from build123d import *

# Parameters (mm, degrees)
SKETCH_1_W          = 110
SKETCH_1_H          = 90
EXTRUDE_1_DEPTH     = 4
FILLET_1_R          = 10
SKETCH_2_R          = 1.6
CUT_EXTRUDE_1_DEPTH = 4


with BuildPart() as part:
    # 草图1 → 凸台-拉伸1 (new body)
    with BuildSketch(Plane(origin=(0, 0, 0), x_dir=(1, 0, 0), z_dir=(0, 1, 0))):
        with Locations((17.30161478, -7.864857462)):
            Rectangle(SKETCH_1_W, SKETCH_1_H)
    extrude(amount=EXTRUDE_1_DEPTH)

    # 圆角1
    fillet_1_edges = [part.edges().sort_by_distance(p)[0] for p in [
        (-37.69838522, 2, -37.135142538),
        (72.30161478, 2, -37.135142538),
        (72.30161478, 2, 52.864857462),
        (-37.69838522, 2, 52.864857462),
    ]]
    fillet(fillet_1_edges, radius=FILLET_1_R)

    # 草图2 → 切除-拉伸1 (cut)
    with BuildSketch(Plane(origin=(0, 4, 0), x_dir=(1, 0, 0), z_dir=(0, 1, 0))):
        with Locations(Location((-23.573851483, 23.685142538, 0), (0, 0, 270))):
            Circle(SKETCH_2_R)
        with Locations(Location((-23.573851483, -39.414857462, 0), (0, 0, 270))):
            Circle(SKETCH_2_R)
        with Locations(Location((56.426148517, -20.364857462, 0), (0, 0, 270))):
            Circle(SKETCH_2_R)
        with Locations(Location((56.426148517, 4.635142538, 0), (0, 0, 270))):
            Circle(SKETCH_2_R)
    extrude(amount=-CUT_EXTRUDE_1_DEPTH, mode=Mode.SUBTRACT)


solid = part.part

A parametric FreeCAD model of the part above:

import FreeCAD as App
import Part
import Sketcher
from FreeCAD import Vector


def edges_at(feature, points):
    """Names of the edges that pass closest to the given points."""
    edges = feature.Shape.Edges
    near = lambda p: min(range(len(edges)), key=lambda i: edges[i].distToShape(Part.Vertex(*p))[0])
    return sorted({f"Edge{near(p) + 1}" for p in points})


def add_polygon(sketch, points):
    """Adds a closed chain of lines whose ends are joined by coincident constraints."""
    first, n = sketch.GeometryCount, len(points)
    for a, b in zip(points, points[1:] + points[:1]):
        sketch.addGeometry(Part.LineSegment(App.Vector(*a, 0), App.Vector(*b, 0)), False)
    for i in range(n):
        sketch.addConstraint(Sketcher.Constraint("Coincident", first + i, 2, first + (i + 1) % n, 1))

doc = App.newDocument("Part")
params = doc.addObject("Spreadsheet::Sheet", "Params")
for row, (alias, value) in enumerate([
    ("sketch1_width", "110 mm"),
    ("sketch1_height", "90 mm"),
    ("pad1_length", "4 mm"),
    ("fillet_radius", "10 mm"),
    ("sketch2_diameter", "3.2 mm"),
    ("pocket1_length", "4 mm"),
], start=1):
    params.set(f"A{row}", alias)
    params.set(f"B{row}", "=" + value)
    params.setAlias(f"B{row}", alias)

body = doc.addObject("PartDesign::Body", "Body")

# Sketch on XZ plane
sketch1 = doc.addObject("Sketcher::SketchObject", "Sketch")
body.addObject(sketch1)
sketch1.AttachmentSupport = (doc.XZ_Plane, [""])
sketch1.MapMode = "FlatFace"
add_polygon(sketch1, [(-37.698385, -37.135143), (-37.698385, 52.864857), (72.301615, 52.864857), (72.301615, -37.135143)])  # lines 0-3
sketch1.addConstraint(Sketcher.Constraint("Vertical", 0))
sketch1.addConstraint(Sketcher.Constraint("Horizontal", 1))
sketch1.addConstraint(Sketcher.Constraint("Vertical", 2))
sketch1.addConstraint(Sketcher.Constraint("Horizontal", 3))
sketch1.addConstraint(Sketcher.Constraint("DistanceX", 1, 1, 1, 2, 110.0))
sketch1.addConstraint(Sketcher.Constraint("DistanceY", 0, 1, 0, 2, 90.0))
sketch1.addConstraint(Sketcher.Constraint("DistanceX", 0, 2, -1, 1, 37.698385))
sketch1.addConstraint(Sketcher.Constraint("DistanceY", -1, 1, 0, 2, 52.864857))
sketch1.setExpression("Constraints[8]", "Params.sketch1_width")
sketch1.setExpression("Constraints[9]", "Params.sketch1_height")
pad1 = doc.addObject("PartDesign::Pad", "Pad")
body.addObject(pad1)
pad1.Profile = sketch1
pad1.setExpression("Length", "Params.pad1_length")
pad1.Reversed = True
doc.recompute()

fillet = doc.addObject("PartDesign::Fillet", "Fillet")
body.addObject(fillet)
fillet.Base = (pad1, edges_at(pad1, [
    (-37.698, 2, -37.135),
    (72.302, 2, -37.135),
    (72.302, 2, 52.865),
    (-37.698, 2, 52.865),
]))
fillet.setExpression("Radius", "Params.fillet_radius")

# Sketch on XZ plane
sketch2 = doc.addObject("Sketcher::SketchObject", "Sketch001")
body.addObject(sketch2)
sketch2.AttachmentSupport = (doc.XZ_Plane, [""])
sketch2.MapMode = "FlatFace"
sketch2.AttachmentOffset = App.Placement(Vector(0, 0, -4), App.Rotation())
sketch2.addGeometry(Part.Circle(Vector(-23.573851, -23.685143, 0), Vector(0, 0, 1), 1.6), False)
sketch2.addGeometry(Part.Circle(Vector(-23.573851, 39.414857, 0), Vector(0, 0, 1), 1.6), False)
sketch2.addGeometry(Part.Circle(Vector(56.426149, 20.364857, 0), Vector(0, 0, 1), 1.6), False)
sketch2.addGeometry(Part.Circle(Vector(56.426149, -4.635143, 0), Vector(0, 0, 1), 1.6), False)
sketch2.addConstraint(Sketcher.Constraint("Equal", 0, 1))
sketch2.addConstraint(Sketcher.Constraint("Equal", 1, 2))
sketch2.addConstraint(Sketcher.Constraint("Equal", 2, 3))
sketch2.addConstraint(Sketcher.Constraint("Vertical", 0, 3, 1, 3))
sketch2.addConstraint(Sketcher.Constraint("Vertical", 2, 3, 3, 3))
sketch2.addConstraint(Sketcher.Constraint("Diameter", 0, 3.2))
sketch2.addConstraint(Sketcher.Constraint("DistanceX", 1, 3, 2, 3, 80.0))
sketch2.addConstraint(Sketcher.Constraint("DistanceY", 3, 3, 2, 3, 25.0))
sketch2.addConstraint(Sketcher.Constraint("DistanceY", 0, 3, 1, 3, 63.1))
sketch2.addConstraint(Sketcher.Constraint("DistanceY", 2, 3, 1, 3, 19.05))
sketch2.addConstraint(Sketcher.Constraint("DistanceX", 0, 3, -1, 1, 23.573851))
sketch2.addConstraint(Sketcher.Constraint("DistanceY", 0, 3, -1, 1, 23.685143))
sketch2.setExpression("Constraints[5]", "Params.sketch2_diameter")
pocket1 = doc.addObject("PartDesign::Pocket", "Pocket")
body.addObject(pocket1)
pocket1.Profile = sketch2
pocket1.setExpression("Length", "Params.pocket1_length")
pocket1.Reversed = True

doc.recompute()
